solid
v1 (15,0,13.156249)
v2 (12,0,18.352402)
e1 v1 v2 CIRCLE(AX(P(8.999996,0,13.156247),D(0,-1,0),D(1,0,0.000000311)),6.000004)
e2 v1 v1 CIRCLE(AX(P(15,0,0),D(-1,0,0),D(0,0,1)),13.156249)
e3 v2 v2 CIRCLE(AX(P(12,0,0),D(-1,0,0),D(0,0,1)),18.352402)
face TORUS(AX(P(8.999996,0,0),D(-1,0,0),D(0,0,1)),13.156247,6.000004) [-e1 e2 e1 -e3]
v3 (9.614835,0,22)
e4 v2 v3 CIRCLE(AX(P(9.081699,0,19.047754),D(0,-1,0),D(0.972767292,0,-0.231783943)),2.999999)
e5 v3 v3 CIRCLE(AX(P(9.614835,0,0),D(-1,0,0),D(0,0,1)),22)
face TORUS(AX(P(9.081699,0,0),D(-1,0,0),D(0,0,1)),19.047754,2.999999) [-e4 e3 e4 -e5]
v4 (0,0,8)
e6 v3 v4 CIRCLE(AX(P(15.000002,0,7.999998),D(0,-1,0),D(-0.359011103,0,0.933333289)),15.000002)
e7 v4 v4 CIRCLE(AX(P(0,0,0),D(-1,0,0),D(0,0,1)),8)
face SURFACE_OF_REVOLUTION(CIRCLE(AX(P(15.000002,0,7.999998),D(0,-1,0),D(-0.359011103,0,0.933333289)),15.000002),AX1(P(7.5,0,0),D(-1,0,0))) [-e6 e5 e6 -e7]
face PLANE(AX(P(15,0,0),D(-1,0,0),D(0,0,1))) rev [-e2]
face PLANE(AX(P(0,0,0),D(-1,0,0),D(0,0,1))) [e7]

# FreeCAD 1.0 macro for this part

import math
import FreeCAD as App
import Part
import Sketcher
from FreeCAD import Vector

doc = App.newDocument("Part")
body = doc.addObject("PartDesign::Body", "Body")

# Sketch on XZ plane
sketch1 = body.newObject("Sketcher::SketchObject", "Sketch")
sketch1.AttachmentSupport = (doc.getObject("XZ_Plane"), [""])
sketch1.MapMode = "FlatFace"
sketch1.addGeometry(Part.LineSegment(Vector(0, 8, 0), Vector(0, 0, 0)), False)
sketch1.addGeometry(Part.LineSegment(Vector(0, 0, 0), Vector(15, 0, 0)), False)
sketch1.addGeometry(Part.LineSegment(Vector(15, 0, 0), Vector(15, 13.2, 0)), False)
sketch1.addGeometry(Part.ArcOfCircle(Part.Circle(Vector(9, 13.2, 0), Vector(0, 0, 1), 6), math.radians(0), math.radians(60)), False)
sketch1.addGeometry(Part.ArcOfCircle(Part.Circle(Vector(9.1, 19, 0), Vector(0, 0, 1), 3), math.radians(-13), math.radians(80)), False)
sketch1.addGeometry(Part.ArcOfCircle(Part.Circle(Vector(15, 8, 0), Vector(0, 0, 1), 15), math.radians(111), math.radians(180)), False)
sketch1.addConstraint(Sketcher.Constraint("Coincident", 0, 2, 1, 1))
sketch1.addConstraint(Sketcher.Constraint("Coincident", 1, 2, 2, 1))
sketch1.addConstraint(Sketcher.Constraint("Tangent", 2, 2, 3, 1))
sketch1.addConstraint(Sketcher.Constraint("Coincident", 3, 2, 4, 1))
sketch1.addConstraint(Sketcher.Constraint("Coincident", 4, 2, 5, 1))
sketch1.addConstraint(Sketcher.Constraint("Tangent", 5, 2, 0, 1))
sketch1.addConstraint(Sketcher.Constraint("Vertical", 0))
sketch1.addConstraint(Sketcher.Constraint("Horizontal", 1))
sketch1.addConstraint(Sketcher.Constraint("Vertical", 2))
sketch1.addConstraint(Sketcher.Constraint("Coincident", 0, 2, -1, 1))
sketch1.addConstraint(Sketcher.Constraint("Radius", 4, 2.999999))
sketch1.addConstraint(Sketcher.Constraint("DistanceX", 1, 1, 1, 2, 15.0))
sketch1.addConstraint(Sketcher.Constraint("DistanceY", 0, 2, 0, 1, 8.0))
sketch1.addConstraint(Sketcher.Constraint("DistanceX", -1, 1, 3, 2, 12.0))
sketch1.addConstraint(Sketcher.Constraint("DistanceY", -1, 1, 4, 2, 22.0))
sketch1.addConstraint(Sketcher.Constraint("Radius", 3, 6.000004))
sketch1.addConstraint(Sketcher.Constraint("Radius", 5, 15.000002))
sketch1.addConstraint(Sketcher.Constraint("DistanceY", 2, 1, 2, 2, 13.156249))
revolution = body.newObject("PartDesign::Revolution", "Revolution")
revolution.Profile = sketch1
revolution.ReferenceAxis = (sketch1, ["H_Axis"])
revolution.Angle = 360

doc.recompute()
